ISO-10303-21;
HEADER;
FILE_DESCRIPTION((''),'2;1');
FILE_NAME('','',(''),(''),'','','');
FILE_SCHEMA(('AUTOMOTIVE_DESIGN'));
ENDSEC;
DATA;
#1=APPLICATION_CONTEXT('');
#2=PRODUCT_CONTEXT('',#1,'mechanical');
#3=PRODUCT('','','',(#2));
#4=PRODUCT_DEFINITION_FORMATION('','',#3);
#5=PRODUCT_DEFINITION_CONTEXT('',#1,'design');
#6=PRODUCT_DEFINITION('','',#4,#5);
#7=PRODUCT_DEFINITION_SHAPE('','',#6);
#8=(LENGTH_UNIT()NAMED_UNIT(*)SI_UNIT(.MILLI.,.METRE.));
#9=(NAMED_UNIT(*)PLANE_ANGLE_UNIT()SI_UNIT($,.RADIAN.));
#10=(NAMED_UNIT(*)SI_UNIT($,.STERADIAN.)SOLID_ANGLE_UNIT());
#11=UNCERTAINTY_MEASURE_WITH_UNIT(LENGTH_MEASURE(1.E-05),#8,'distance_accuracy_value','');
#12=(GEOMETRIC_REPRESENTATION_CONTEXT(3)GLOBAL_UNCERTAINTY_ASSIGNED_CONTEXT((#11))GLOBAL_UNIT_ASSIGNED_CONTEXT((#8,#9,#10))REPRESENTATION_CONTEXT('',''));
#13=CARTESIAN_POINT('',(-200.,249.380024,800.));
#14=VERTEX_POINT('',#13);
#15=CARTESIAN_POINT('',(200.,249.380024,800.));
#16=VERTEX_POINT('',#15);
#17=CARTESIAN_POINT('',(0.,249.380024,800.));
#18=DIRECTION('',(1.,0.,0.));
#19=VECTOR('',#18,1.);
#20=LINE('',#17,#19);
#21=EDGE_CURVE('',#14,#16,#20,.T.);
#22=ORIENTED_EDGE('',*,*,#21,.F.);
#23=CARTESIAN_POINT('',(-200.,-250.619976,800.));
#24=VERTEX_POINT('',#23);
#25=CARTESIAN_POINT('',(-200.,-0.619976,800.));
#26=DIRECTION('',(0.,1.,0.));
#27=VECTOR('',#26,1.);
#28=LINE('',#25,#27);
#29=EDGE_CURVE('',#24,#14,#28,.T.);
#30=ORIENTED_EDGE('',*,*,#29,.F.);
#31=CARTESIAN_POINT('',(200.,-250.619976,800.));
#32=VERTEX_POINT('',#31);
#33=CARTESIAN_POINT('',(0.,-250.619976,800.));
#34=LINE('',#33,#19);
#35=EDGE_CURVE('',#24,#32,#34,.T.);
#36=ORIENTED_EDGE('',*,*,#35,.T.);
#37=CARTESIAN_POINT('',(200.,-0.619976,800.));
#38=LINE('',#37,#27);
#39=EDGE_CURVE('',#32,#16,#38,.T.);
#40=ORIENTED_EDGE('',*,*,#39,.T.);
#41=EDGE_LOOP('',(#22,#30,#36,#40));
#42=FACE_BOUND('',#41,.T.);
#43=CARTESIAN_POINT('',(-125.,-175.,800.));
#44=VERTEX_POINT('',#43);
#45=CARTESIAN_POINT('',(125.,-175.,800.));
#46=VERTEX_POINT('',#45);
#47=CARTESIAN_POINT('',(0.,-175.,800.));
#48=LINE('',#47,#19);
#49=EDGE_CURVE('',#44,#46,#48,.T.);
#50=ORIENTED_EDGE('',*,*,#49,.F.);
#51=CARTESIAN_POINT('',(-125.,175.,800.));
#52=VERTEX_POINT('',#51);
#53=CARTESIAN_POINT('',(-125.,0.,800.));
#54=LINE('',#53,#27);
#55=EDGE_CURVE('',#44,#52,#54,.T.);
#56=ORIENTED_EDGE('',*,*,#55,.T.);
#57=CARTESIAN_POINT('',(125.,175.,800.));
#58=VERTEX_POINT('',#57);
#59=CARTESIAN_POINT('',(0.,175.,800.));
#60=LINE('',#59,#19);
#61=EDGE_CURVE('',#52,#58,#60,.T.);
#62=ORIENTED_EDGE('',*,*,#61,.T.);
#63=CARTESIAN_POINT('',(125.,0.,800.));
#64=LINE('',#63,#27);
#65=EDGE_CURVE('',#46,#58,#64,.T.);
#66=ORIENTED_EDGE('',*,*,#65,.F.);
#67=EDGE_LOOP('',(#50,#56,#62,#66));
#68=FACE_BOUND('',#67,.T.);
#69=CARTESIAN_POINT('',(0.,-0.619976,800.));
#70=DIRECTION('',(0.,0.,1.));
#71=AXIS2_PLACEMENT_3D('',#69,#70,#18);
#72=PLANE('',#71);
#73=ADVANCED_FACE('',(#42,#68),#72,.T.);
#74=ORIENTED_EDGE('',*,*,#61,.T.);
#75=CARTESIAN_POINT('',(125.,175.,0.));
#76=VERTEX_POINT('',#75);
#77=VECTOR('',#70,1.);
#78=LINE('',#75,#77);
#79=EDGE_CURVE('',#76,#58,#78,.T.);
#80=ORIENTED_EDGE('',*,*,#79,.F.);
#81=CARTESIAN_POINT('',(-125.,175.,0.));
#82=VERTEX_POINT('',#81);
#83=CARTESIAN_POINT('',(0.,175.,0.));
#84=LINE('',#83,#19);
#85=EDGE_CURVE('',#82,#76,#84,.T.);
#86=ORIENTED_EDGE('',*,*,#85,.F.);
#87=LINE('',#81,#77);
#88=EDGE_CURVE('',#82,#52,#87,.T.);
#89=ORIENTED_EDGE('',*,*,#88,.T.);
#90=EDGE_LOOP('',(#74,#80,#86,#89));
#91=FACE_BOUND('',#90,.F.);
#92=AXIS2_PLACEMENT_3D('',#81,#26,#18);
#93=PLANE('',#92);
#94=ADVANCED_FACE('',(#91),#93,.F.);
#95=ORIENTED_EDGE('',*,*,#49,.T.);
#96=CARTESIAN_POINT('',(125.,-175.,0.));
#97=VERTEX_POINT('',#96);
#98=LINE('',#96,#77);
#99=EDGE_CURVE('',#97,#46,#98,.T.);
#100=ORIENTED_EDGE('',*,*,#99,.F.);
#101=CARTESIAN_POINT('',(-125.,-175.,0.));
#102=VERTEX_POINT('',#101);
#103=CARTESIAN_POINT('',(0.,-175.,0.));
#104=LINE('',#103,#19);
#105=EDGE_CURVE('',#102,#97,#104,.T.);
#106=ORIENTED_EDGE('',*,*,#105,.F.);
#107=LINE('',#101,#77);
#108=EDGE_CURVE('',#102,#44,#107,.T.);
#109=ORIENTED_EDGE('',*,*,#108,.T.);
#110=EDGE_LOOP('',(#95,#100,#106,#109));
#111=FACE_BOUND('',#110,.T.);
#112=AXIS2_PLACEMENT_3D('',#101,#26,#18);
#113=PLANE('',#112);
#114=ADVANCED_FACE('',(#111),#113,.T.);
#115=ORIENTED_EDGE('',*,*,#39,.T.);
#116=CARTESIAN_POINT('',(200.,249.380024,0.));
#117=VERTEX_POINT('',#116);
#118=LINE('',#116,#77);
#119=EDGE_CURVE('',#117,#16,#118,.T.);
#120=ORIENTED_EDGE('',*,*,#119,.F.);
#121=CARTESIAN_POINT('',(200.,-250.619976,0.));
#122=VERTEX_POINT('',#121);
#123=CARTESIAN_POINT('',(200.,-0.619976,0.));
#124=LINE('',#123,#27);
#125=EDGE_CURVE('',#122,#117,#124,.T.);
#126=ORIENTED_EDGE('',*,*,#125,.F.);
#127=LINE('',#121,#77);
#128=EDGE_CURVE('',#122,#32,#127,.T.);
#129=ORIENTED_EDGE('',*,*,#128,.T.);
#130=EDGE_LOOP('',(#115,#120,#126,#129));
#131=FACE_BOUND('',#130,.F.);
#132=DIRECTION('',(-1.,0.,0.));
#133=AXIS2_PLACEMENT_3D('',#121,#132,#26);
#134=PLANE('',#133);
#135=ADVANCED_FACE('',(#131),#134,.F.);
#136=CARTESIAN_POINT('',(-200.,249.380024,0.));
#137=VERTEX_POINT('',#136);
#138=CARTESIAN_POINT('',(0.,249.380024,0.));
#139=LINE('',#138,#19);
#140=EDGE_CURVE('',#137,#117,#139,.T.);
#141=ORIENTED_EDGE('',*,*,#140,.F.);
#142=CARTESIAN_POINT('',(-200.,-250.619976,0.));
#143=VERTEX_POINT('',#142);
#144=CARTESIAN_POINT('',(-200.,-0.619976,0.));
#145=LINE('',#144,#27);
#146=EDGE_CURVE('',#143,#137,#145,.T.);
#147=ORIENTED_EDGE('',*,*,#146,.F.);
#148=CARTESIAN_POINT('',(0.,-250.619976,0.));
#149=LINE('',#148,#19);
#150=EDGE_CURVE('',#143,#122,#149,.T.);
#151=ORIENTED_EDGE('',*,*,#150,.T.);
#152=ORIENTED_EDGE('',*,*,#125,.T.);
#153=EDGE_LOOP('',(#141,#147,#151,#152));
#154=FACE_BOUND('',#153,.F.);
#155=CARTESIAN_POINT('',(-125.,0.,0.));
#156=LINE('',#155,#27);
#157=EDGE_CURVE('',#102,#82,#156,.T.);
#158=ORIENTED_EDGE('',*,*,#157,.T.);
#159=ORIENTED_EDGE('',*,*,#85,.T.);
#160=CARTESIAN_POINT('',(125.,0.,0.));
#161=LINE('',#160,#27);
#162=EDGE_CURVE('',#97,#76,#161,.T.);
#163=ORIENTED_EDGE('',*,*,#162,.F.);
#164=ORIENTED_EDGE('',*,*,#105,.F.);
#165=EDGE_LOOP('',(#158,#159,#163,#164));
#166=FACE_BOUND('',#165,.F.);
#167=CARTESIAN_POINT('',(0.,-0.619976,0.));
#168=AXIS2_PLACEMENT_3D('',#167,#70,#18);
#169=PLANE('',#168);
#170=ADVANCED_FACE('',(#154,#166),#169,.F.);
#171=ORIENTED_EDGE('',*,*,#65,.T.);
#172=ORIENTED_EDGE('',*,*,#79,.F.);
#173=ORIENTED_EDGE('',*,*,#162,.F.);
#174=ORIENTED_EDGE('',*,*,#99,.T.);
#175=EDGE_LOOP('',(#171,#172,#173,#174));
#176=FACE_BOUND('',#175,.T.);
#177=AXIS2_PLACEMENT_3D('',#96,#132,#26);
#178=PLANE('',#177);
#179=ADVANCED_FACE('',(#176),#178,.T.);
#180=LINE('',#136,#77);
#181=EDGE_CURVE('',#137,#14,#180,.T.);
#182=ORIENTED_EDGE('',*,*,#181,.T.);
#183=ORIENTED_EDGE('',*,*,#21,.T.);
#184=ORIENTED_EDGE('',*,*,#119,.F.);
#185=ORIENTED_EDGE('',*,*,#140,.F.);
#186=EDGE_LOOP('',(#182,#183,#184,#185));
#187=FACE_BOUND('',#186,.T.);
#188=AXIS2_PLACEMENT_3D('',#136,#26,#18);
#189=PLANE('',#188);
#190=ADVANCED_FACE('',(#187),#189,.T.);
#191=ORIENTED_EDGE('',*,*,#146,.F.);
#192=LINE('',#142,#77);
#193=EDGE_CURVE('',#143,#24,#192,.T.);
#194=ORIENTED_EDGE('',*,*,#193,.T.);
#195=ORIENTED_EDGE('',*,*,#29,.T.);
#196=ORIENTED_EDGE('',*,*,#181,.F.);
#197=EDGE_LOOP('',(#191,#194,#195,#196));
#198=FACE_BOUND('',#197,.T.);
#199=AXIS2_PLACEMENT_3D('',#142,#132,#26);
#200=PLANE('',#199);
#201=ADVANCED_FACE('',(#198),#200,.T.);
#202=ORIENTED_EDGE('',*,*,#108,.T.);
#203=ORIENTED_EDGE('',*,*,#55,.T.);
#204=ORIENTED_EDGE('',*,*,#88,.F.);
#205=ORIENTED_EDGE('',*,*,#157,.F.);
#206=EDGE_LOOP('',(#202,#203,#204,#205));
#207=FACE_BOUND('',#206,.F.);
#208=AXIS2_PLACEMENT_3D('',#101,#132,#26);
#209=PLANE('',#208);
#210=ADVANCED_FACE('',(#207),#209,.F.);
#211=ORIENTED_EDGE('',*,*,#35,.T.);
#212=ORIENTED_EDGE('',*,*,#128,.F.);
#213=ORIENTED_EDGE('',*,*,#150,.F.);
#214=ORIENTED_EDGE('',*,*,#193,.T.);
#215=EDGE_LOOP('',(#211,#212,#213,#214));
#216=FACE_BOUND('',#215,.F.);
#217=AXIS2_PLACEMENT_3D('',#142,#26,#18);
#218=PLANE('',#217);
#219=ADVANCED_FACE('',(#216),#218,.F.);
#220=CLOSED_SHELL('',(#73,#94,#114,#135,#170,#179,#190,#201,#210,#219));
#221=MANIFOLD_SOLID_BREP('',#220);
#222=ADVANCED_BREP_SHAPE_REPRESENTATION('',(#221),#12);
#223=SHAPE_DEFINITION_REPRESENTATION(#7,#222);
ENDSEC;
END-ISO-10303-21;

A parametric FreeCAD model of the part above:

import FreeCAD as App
import Part
import Sketcher
from FreeCAD import Vector

doc = App.newDocument("Part")
body = doc.addObject("PartDesign::Body", "Body")

# Sketch on XY plane
sketch1 = doc.addObject("Sketcher::SketchObject", "Sketch")
body.addObject(sketch1)
sketch1.AttachmentSupport = (doc.XY_Plane, [""])
sketch1.MapMode = "FlatFace"
sketch1.addGeometry([
    Part.LineSegment(Vector(-200, 249, 0), Vector(-200, -251, 0)),  # 0
    Part.LineSegment(Vector(-200, -251, 0), Vector(200, -251, 0)),  # 1
    Part.LineSegment(Vector(200, -251, 0), Vector(200, 249, 0)),  # 2
    Part.LineSegment(Vector(200, 249, 0), Vector(-200, 249, 0)),  # 3
    Part.LineSegment(Vector(125, -175, 0), Vector(-125, -175, 0)),  # 4
    Part.LineSegment(Vector(-125, -175, 0), Vector(-125, 175, 0)),  # 5
    Part.LineSegment(Vector(-125, 175, 0), Vector(125, 175, 0)),  # 6
    Part.LineSegment(Vector(125, 175, 0), Vector(125, -175, 0)),  # 7
], False)
sketch1.addConstraint([
    Sketcher.Constraint("Coincident", 0, 2, 1, 1),
    Sketcher.Constraint("Coincident", 1, 2, 2, 1),
    Sketcher.Constraint("Coincident", 2, 2, 3, 1),
    Sketcher.Constraint("Coincident", 3, 2, 0, 1),
    Sketcher.Constraint("Coincident", 4, 2, 5, 1),
    Sketcher.Constraint("Coincident", 5, 2, 6, 1),
    Sketcher.Constraint("Coincident", 6, 2, 7, 1),
    Sketcher.Constraint("Coincident", 7, 2, 4, 1),
    Sketcher.Constraint("Vertical", 0),
    Sketcher.Constraint("Horizontal", 1),
    Sketcher.Constraint("Vertical", 2),
    Sketcher.Constraint("Horizontal", 3),
    Sketcher.Constraint("Horizontal", 4),
    Sketcher.Constraint("Vertical", 5),
    Sketcher.Constraint("Horizontal", 6),
    Sketcher.Constraint("Vertical", 7),
    Sketcher.Constraint("Symmetric", 4, 2, 6, 2, -1, 1),
    Sketcher.Constraint("DistanceX", 1, 1, 1, 2, 400.0),
    Sketcher.Constraint("DistanceX", 4, 2, 4, 1, 250.0),
    Sketcher.Constraint("DistanceY", 0, 2, 0, 1, 500.0),
    Sketcher.Constraint("DistanceY", 5, 1, 5, 2, 350.0),
    Sketcher.Constraint("DistanceX", 0, 2, -1, 1, 200.0),
    Sketcher.Constraint("DistanceY", 0, 2, -1, 1, 250.619976),
])
pad1 = doc.addObject("PartDesign::Pad", "Pad")
body.addObject(pad1)
pad1.Profile = sketch1
pad1.Length = 800

doc.recompute()
